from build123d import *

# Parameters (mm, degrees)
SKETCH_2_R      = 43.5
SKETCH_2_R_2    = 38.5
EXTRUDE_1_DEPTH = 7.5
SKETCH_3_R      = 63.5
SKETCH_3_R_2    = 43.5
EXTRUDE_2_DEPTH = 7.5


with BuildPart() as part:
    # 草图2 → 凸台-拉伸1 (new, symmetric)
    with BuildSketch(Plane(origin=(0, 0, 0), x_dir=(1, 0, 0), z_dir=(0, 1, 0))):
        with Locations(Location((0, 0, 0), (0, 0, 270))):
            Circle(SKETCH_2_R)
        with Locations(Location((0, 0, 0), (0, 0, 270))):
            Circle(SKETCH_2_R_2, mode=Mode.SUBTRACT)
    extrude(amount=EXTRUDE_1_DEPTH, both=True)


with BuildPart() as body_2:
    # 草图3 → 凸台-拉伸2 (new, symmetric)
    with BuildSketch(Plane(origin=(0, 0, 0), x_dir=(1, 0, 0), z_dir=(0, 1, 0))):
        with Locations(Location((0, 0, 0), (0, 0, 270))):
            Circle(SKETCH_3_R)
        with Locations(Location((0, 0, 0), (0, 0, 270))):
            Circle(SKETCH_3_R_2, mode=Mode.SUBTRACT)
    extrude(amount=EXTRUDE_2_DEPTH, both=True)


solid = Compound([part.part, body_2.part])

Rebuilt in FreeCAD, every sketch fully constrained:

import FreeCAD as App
import Part
import Sketcher
from FreeCAD import Vector

doc = App.newDocument("Part")
body = doc.addObject("PartDesign::Body", "Body")

# Sketch on XZ plane
sketch1 = body.newObject("Sketcher::SketchObject", "Sketch")
sketch1.AttachmentSupport = (doc.getObject("XZ_Plane"), [""])
sketch1.MapMode = "FlatFace"
sketch1.addGeometry(Part.Circle(Vector(0, 0, 0), Vector(0, 0, 1), 43.5), False)
sketch1.addGeometry(Part.Circle(Vector(0, 0, 0), Vector(0, 0, 1), 38.5), False)
sketch1.addConstraint(Sketcher.Constraint("Coincident", 0, 3, -1, 1))
sketch1.addConstraint(Sketcher.Constraint("Coincident", 1, 3, -1, 1))
sketch1.addConstraint(Sketcher.Constraint("Diameter", 0, 87.0))
sketch1.addConstraint(Sketcher.Constraint("Diameter", 1, 77.0))
pad1 = body.newObject("PartDesign::Pad", "Pad")
pad1.Profile = sketch1
pad1.Length = 15
pad1.Midplane = True
body2 = doc.addObject("PartDesign::Body", "Body001")

# Sketch on XZ plane
sketch2 = body2.newObject("Sketcher::SketchObject", "Sketch001")
sketch2.AttachmentSupport = (doc.getObject("XZ_Plane001"), [""])
sketch2.MapMode = "FlatFace"
sketch2.addGeometry(Part.Circle(Vector(0, 0, 0), Vector(0, 0, 1), 63.5), False)
sketch2.addGeometry(Part.Circle(Vector(0, 0, 0), Vector(0, 0, 1), 43.5), False)
sketch2.addConstraint(Sketcher.Constraint("Coincident", 0, 3, -1, 1))
sketch2.addConstraint(Sketcher.Constraint("Coincident", 1, 3, -1, 1))
sketch2.addConstraint(Sketcher.Constraint("Diameter", 0, 127.0))
sketch2.addConstraint(Sketcher.Constraint("Diameter", 1, 87.0))
pad2 = body2.newObject("PartDesign::Pad", "Pad001")
pad2.Profile = sketch2
pad2.Length = 15
pad2.Midplane = True

doc.recompute()
